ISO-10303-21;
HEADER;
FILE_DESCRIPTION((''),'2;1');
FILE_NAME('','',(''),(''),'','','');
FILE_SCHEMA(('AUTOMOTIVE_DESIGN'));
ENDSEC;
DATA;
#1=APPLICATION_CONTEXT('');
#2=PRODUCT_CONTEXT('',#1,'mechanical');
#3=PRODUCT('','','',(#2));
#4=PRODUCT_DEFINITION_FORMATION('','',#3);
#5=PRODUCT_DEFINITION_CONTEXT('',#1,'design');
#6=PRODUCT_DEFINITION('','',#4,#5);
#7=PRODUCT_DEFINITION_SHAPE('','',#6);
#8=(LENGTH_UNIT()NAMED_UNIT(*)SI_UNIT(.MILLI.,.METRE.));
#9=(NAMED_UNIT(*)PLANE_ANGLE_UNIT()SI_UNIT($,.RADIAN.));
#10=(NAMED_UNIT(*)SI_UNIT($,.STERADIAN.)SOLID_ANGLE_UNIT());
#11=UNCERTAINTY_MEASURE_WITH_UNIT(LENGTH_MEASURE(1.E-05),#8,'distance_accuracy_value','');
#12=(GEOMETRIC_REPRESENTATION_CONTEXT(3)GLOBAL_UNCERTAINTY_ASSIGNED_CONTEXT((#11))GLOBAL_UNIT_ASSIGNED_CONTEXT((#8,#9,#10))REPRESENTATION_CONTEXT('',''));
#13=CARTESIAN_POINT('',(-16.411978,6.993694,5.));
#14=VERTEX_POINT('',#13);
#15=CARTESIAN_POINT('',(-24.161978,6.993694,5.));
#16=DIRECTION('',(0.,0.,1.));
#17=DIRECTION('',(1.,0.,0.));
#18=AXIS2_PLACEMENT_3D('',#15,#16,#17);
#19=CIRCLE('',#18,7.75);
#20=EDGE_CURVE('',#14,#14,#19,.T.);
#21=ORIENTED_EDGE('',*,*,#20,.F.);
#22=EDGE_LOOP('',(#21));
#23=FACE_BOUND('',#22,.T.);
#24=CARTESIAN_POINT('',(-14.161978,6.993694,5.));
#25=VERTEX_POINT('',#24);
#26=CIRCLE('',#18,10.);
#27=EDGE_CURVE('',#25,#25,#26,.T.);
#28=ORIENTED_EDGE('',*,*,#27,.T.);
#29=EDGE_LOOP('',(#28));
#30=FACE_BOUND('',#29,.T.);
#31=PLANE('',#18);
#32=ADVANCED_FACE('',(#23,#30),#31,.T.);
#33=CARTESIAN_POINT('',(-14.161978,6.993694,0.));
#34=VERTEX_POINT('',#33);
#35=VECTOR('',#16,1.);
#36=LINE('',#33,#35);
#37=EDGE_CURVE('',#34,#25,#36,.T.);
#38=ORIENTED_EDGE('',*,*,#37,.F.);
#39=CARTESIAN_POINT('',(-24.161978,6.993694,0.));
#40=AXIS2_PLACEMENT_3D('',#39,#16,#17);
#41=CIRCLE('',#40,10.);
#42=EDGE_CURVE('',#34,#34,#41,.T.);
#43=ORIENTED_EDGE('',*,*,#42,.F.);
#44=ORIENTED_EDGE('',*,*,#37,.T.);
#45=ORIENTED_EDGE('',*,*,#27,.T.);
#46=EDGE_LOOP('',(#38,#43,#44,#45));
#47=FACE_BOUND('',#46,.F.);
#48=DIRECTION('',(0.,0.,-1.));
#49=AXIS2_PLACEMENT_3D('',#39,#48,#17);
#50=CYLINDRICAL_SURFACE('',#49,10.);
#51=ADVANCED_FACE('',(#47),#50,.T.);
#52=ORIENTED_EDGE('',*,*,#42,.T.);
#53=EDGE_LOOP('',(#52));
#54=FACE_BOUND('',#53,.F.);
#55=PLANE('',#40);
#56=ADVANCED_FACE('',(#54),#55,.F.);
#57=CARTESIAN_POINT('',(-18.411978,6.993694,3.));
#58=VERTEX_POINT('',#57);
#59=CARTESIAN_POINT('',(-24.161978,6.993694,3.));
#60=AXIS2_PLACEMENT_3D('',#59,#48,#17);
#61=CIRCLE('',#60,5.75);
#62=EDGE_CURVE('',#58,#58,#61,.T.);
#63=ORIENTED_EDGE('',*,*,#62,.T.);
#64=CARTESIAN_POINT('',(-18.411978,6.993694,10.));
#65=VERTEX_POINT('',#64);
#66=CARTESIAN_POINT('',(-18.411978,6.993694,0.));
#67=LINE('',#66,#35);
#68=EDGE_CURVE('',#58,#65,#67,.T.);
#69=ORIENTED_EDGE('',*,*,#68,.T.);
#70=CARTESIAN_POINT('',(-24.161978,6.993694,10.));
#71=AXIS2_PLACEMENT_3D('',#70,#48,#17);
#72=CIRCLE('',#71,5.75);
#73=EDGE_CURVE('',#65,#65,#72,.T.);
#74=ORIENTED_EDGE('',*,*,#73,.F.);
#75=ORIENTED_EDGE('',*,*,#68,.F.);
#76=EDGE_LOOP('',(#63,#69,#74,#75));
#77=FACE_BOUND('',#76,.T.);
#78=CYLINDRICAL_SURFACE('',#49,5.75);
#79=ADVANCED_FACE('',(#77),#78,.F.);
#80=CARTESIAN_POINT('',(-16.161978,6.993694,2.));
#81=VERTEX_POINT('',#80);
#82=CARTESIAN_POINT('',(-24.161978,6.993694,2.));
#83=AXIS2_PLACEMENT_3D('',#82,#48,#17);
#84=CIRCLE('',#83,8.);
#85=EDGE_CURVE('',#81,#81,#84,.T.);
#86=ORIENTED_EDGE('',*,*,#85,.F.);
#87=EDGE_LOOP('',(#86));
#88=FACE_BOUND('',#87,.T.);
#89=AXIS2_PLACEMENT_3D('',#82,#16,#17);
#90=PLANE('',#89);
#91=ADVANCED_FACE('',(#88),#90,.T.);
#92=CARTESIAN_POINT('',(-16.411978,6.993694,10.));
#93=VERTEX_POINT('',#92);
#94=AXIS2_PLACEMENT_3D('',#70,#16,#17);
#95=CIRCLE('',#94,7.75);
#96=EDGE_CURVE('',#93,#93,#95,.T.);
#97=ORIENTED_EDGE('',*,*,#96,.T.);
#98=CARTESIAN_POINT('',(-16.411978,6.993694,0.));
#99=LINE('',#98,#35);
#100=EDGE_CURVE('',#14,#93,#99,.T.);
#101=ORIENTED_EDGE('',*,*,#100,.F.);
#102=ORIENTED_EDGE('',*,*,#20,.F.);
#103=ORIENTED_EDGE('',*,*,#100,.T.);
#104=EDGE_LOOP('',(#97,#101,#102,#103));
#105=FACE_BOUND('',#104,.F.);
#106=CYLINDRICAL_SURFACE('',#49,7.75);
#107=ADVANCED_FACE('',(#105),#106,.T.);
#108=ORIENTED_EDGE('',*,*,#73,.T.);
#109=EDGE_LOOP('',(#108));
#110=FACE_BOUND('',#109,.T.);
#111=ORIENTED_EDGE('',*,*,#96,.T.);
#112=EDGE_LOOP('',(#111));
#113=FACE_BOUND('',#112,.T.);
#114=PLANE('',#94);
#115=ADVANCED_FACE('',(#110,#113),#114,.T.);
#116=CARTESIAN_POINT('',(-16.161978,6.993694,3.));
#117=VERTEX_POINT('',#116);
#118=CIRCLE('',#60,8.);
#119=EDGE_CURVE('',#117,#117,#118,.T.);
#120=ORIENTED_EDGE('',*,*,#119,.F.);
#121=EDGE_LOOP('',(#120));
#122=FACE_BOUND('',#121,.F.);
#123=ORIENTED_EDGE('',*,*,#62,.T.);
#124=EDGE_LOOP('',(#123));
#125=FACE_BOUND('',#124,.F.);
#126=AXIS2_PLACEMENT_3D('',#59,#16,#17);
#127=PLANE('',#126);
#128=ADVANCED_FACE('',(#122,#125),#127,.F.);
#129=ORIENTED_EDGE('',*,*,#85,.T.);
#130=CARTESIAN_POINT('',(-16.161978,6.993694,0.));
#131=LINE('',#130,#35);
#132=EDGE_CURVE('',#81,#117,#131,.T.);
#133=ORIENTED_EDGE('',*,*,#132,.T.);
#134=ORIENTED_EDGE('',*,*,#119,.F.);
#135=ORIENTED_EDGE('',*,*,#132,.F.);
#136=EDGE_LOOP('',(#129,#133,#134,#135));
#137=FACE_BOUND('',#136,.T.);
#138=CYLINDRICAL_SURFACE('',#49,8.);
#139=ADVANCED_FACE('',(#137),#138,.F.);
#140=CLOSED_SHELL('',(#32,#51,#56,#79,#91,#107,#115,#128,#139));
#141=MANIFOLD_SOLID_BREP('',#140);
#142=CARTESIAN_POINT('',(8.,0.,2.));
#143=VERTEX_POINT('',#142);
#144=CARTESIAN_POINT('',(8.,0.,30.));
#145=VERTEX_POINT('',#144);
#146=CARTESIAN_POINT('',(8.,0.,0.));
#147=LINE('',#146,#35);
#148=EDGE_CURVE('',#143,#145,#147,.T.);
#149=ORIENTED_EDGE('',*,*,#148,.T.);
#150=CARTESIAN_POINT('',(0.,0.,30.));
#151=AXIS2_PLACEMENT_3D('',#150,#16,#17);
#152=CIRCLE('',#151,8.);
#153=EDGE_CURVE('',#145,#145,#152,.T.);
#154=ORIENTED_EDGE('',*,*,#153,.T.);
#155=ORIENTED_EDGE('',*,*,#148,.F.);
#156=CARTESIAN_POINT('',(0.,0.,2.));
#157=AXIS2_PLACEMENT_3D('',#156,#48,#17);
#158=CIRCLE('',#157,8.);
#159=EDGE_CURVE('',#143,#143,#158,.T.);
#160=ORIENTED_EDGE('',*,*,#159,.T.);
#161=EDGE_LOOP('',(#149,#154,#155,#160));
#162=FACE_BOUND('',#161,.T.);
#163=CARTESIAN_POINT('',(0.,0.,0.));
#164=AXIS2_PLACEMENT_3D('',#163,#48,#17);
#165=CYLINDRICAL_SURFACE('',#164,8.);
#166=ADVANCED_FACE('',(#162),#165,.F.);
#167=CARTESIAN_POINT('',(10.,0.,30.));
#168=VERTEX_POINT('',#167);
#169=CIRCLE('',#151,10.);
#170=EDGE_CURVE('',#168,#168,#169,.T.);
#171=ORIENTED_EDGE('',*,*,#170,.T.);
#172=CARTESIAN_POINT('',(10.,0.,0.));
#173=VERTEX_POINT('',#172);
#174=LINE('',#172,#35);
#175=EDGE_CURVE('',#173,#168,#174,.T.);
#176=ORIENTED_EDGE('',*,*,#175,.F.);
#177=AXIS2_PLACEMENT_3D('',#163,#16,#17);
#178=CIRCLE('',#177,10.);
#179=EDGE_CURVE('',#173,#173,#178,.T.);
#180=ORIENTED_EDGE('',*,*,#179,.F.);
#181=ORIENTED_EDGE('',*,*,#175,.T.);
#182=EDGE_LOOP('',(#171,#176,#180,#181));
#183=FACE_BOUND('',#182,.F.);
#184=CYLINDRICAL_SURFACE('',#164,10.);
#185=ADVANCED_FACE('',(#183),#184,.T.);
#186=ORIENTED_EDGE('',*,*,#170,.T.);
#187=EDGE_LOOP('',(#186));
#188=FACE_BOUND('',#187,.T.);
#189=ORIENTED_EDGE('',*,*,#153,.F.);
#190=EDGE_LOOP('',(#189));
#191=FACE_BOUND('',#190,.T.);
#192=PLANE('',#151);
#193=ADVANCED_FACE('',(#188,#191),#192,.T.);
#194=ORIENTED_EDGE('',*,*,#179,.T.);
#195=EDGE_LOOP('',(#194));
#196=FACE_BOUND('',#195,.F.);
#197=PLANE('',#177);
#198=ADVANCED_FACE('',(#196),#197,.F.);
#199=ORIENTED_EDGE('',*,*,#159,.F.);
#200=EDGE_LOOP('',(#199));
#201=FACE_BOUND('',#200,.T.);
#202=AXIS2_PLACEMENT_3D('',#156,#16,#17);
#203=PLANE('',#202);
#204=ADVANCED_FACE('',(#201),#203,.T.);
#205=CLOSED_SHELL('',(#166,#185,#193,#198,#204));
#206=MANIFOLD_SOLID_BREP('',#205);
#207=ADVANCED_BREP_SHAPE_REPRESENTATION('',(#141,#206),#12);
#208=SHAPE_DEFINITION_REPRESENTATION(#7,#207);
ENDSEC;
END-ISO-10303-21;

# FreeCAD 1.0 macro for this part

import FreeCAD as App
import Part
import Sketcher
Q = App.Units.Quantity


def faces_at(feature, points):
    """Names of the faces that lie closest to the given points."""
    faces = feature.Shape.Faces
    near = lambda p: min(range(len(faces)), key=lambda i: faces[i].distToShape(Part.Vertex(*p))[0])
    return sorted({f"Face{near(p) + 1}" for p in points})

doc = App.newDocument("Part")
params = doc.addObject("Spreadsheet::Sheet", "Params")
for row, (alias, value) in enumerate([
    ("sketch1_diameter", "20 mm"),
    ("pad1_length", "30 mm"),
    ("thickness_wall", "2 mm"),
    ("sketch2_diameter", "15.5 mm"),
    ("pad2_length", "10 mm"),
    ("sketch3_diameter", "20 mm"),
    ("sketch3_diameter2", "15.5 mm"),
    ("pad3_length", "5 mm"),
    ("thickness2_wall", "2 mm"),
], start=1):
    params.set(f"A{row}", alias)
    params.set(f"B{row}", "=" + value)
    params.setAlias(f"B{row}", alias)

body = doc.addObject("PartDesign::Body", "Body")

# Sketch on XY plane
sketch1 = body.newObject("Sketcher::SketchObject", "Sketch")
sketch1.AttachmentSupport = (doc.getObject("XY_Plane"), [""])
sketch1.MapMode = "FlatFace"
sketch1.addGeometry(Part.Circle(App.Vector(0, 0, 0), App.Vector(0, 0, 1), 10), False)
sketch1.addConstraint([
    Sketcher.Constraint("Coincident", 0, 3, -1, 1),
    Sketcher.Constraint("Diameter", 0, Q("20 mm")),
])
sketch1.setExpression("Constraints[1]", "Params.sketch1_diameter")
pad1 = body.newObject("PartDesign::Pad", "Pad")
pad1.Profile = sketch1
pad1.setExpression("Length", "Params.pad1_length")
doc.recompute()

thickness = body.newObject("PartDesign::Thickness", "Thickness")
thickness.Base = (pad1, faces_at(pad1, [(0, 0, 30)]))
thickness.setExpression("Value", "Params.thickness_wall")
thickness.Reversed = True
thickness.Join = "Arc"
body2 = doc.addObject("PartDesign::Body", "Body001")

# Sketch on XY plane
sketch2 = body2.newObject("Sketcher::SketchObject", "Sketch001")
sketch2.AttachmentSupport = (doc.getObject("XY_Plane001"), [""])
sketch2.MapMode = "FlatFace"
sketch2.addGeometry(Part.Circle(App.Vector(-24, 7, 0), App.Vector(0, 0, 1), 8), False)
sketch2.addConstraint([
    Sketcher.Constraint("Diameter", 0, Q("15.5 mm")),
    Sketcher.Constraint("DistanceX", 0, 3, -1, 1, Q("24.161978 mm")),
    Sketcher.Constraint("DistanceY", -1, 1, 0, 3, Q("6.993694 mm")),
])
sketch2.setExpression("Constraints[0]", "Params.sketch2_diameter")
pad2 = body2.newObject("PartDesign::Pad", "Pad001")
pad2.Profile = sketch2
pad2.setExpression("Length", "Params.pad2_length")

# Sketch on XY plane
sketch3 = body2.newObject("Sketcher::SketchObject", "Sketch002")
sketch3.AttachmentSupport = (doc.getObject("XY_Plane001"), [""])
sketch3.MapMode = "FlatFace"
sketch3.addGeometry([
    Part.Circle(App.Vector(-24, 7, 0), App.Vector(0, 0, 1), 10),
    Part.Circle(App.Vector(-24, 7, 0), App.Vector(0, 0, 1), 8),
], False)
sketch3.addConstraint([
    Sketcher.Constraint("Coincident", 1, 3, 0, 3),
    Sketcher.Constraint("Diameter", 0, Q("20 mm")),
    Sketcher.Constraint("Diameter", 1, Q("15.5 mm")),
    Sketcher.Constraint("DistanceX", 0, 3, -1, 1, Q("24.161978 mm")),
    Sketcher.Constraint("DistanceY", -1, 1, 0, 3, Q("6.993694 mm")),
])
sketch3.setExpression("Constraints[1]", "Params.sketch3_diameter")
sketch3.setExpression("Constraints[2]", "Params.sketch3_diameter2")
pad3 = body2.newObject("PartDesign::Pad", "Pad002")
pad3.Profile = sketch3
pad3.setExpression("Length", "Params.pad3_length")
doc.recompute()

thickness2 = body2.newObject("PartDesign::Thickness", "Thickness001")
thickness2.Base = (pad3, faces_at(pad3, [(-24.162, 6.994, 10)]))
thickness2.setExpression("Value", "Params.thickness2_wall")
thickness2.Reversed = True
thickness2.Join = "Intersection"

doc.recompute()
